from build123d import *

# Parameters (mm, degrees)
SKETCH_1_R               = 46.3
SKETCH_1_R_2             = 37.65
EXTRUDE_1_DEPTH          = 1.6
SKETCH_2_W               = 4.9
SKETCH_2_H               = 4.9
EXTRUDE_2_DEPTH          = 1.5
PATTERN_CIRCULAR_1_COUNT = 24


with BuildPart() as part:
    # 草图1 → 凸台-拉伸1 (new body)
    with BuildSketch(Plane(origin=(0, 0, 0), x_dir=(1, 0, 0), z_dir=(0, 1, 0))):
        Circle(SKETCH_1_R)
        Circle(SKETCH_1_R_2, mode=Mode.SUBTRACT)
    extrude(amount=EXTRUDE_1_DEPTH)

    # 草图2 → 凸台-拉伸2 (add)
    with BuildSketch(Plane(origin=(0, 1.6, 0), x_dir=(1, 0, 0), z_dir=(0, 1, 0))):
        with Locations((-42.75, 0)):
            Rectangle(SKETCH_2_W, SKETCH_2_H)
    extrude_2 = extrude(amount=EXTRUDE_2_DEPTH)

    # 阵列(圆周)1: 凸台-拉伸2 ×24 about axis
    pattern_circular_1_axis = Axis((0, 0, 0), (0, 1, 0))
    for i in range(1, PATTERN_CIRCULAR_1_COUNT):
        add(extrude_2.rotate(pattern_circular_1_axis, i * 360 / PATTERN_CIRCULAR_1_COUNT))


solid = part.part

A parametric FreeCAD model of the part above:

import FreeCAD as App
import Part
import Sketcher

V = App.Vector


def add_polygon(sketch, points):
    """Adds a closed chain of lines whose ends are joined by coincident constraints."""
    first, n = sketch.GeometryCount, len(points)
    for a, b in zip(points, points[1:] + points[:1]):
        sketch.addGeometry(Part.LineSegment(App.Vector(*a, 0), App.Vector(*b, 0)), False)
    for i in range(n):
        sketch.addConstraint(Sketcher.Constraint("Coincident", first + i, 2, first + (i + 1) % n, 1))

doc = App.newDocument("Part")
body = doc.addObject("PartDesign::Body", "Body")

# Sketch on XZ plane
sketch1 = body.newObject("Sketcher::SketchObject", "Sketch")
sketch1.AttachmentSupport = (doc.getObject("XZ_Plane"), [""])
sketch1.MapMode = "FlatFace"
sketch1.addGeometry(Part.Circle(V(0, 0, 0), V(0, 0, 1), 46), False)
sketch1.addGeometry(Part.Circle(V(0, 0, 0), V(0, 0, 1), 38), False)
sketch1.addConstraint(Sketcher.Constraint("Coincident", 0, 3, -1, 1))
sketch1.addConstraint(Sketcher.Constraint("Coincident", 1, 3, -1, 1))
sketch1.addConstraint(Sketcher.Constraint("Diameter", 0, 92.6))
sketch1.addConstraint(Sketcher.Constraint("Diameter", 1, 75.3))
pad1 = body.newObject("PartDesign::Pad", "Pad")
pad1.Profile = sketch1
pad1.Length = 1.6
pad1.Reversed = True

# Sketch on XZ plane
sketch2 = body.newObject("Sketcher::SketchObject", "Sketch001")
sketch2.AttachmentSupport = (doc.getObject("XZ_Plane"), [""])
sketch2.MapMode = "FlatFace"
sketch2.AttachmentOffset = App.Placement(V(0, 0, -1.6), App.Rotation())
add_polygon(sketch2, [(-45.2, -2.5), (-45.2, 2.5), (-40.3, 2.5), (-40.3, -2.5)])  # lines 0-3
sketch2.addConstraint(Sketcher.Constraint("Vertical", 0))
sketch2.addConstraint(Sketcher.Constraint("Horizontal", 1))
sketch2.addConstraint(Sketcher.Constraint("Vertical", 2))
sketch2.addConstraint(Sketcher.Constraint("Horizontal", 3))
sketch2.addConstraint(Sketcher.Constraint("Equal", 3, 0))
sketch2.addConstraint(Sketcher.Constraint("DistanceX", 1, 1, 1, 2, 4.9))
sketch2.addConstraint(Sketcher.Constraint("DistanceX", 0, 2, -1, 1, 45.2))
sketch2.addConstraint(Sketcher.Constraint("DistanceY", -1, 1, 0, 2, 2.45))
pad2 = body.newObject("PartDesign::Pad", "Pad001")
pad2.Profile = sketch2
pad2.Length = 1.5
pad2.Reversed = True
doc.recompute()

polarpattern = body.newObject("PartDesign::PolarPattern", "PolarPattern")
polarpattern.Originals = [pad2]
polarpattern.Axis = (doc.getObject("Y_Axis"), [""])
polarpattern.Angle = 360
polarpattern.Occurrences = 24
body.Tip = polarpattern

doc.recompute()
